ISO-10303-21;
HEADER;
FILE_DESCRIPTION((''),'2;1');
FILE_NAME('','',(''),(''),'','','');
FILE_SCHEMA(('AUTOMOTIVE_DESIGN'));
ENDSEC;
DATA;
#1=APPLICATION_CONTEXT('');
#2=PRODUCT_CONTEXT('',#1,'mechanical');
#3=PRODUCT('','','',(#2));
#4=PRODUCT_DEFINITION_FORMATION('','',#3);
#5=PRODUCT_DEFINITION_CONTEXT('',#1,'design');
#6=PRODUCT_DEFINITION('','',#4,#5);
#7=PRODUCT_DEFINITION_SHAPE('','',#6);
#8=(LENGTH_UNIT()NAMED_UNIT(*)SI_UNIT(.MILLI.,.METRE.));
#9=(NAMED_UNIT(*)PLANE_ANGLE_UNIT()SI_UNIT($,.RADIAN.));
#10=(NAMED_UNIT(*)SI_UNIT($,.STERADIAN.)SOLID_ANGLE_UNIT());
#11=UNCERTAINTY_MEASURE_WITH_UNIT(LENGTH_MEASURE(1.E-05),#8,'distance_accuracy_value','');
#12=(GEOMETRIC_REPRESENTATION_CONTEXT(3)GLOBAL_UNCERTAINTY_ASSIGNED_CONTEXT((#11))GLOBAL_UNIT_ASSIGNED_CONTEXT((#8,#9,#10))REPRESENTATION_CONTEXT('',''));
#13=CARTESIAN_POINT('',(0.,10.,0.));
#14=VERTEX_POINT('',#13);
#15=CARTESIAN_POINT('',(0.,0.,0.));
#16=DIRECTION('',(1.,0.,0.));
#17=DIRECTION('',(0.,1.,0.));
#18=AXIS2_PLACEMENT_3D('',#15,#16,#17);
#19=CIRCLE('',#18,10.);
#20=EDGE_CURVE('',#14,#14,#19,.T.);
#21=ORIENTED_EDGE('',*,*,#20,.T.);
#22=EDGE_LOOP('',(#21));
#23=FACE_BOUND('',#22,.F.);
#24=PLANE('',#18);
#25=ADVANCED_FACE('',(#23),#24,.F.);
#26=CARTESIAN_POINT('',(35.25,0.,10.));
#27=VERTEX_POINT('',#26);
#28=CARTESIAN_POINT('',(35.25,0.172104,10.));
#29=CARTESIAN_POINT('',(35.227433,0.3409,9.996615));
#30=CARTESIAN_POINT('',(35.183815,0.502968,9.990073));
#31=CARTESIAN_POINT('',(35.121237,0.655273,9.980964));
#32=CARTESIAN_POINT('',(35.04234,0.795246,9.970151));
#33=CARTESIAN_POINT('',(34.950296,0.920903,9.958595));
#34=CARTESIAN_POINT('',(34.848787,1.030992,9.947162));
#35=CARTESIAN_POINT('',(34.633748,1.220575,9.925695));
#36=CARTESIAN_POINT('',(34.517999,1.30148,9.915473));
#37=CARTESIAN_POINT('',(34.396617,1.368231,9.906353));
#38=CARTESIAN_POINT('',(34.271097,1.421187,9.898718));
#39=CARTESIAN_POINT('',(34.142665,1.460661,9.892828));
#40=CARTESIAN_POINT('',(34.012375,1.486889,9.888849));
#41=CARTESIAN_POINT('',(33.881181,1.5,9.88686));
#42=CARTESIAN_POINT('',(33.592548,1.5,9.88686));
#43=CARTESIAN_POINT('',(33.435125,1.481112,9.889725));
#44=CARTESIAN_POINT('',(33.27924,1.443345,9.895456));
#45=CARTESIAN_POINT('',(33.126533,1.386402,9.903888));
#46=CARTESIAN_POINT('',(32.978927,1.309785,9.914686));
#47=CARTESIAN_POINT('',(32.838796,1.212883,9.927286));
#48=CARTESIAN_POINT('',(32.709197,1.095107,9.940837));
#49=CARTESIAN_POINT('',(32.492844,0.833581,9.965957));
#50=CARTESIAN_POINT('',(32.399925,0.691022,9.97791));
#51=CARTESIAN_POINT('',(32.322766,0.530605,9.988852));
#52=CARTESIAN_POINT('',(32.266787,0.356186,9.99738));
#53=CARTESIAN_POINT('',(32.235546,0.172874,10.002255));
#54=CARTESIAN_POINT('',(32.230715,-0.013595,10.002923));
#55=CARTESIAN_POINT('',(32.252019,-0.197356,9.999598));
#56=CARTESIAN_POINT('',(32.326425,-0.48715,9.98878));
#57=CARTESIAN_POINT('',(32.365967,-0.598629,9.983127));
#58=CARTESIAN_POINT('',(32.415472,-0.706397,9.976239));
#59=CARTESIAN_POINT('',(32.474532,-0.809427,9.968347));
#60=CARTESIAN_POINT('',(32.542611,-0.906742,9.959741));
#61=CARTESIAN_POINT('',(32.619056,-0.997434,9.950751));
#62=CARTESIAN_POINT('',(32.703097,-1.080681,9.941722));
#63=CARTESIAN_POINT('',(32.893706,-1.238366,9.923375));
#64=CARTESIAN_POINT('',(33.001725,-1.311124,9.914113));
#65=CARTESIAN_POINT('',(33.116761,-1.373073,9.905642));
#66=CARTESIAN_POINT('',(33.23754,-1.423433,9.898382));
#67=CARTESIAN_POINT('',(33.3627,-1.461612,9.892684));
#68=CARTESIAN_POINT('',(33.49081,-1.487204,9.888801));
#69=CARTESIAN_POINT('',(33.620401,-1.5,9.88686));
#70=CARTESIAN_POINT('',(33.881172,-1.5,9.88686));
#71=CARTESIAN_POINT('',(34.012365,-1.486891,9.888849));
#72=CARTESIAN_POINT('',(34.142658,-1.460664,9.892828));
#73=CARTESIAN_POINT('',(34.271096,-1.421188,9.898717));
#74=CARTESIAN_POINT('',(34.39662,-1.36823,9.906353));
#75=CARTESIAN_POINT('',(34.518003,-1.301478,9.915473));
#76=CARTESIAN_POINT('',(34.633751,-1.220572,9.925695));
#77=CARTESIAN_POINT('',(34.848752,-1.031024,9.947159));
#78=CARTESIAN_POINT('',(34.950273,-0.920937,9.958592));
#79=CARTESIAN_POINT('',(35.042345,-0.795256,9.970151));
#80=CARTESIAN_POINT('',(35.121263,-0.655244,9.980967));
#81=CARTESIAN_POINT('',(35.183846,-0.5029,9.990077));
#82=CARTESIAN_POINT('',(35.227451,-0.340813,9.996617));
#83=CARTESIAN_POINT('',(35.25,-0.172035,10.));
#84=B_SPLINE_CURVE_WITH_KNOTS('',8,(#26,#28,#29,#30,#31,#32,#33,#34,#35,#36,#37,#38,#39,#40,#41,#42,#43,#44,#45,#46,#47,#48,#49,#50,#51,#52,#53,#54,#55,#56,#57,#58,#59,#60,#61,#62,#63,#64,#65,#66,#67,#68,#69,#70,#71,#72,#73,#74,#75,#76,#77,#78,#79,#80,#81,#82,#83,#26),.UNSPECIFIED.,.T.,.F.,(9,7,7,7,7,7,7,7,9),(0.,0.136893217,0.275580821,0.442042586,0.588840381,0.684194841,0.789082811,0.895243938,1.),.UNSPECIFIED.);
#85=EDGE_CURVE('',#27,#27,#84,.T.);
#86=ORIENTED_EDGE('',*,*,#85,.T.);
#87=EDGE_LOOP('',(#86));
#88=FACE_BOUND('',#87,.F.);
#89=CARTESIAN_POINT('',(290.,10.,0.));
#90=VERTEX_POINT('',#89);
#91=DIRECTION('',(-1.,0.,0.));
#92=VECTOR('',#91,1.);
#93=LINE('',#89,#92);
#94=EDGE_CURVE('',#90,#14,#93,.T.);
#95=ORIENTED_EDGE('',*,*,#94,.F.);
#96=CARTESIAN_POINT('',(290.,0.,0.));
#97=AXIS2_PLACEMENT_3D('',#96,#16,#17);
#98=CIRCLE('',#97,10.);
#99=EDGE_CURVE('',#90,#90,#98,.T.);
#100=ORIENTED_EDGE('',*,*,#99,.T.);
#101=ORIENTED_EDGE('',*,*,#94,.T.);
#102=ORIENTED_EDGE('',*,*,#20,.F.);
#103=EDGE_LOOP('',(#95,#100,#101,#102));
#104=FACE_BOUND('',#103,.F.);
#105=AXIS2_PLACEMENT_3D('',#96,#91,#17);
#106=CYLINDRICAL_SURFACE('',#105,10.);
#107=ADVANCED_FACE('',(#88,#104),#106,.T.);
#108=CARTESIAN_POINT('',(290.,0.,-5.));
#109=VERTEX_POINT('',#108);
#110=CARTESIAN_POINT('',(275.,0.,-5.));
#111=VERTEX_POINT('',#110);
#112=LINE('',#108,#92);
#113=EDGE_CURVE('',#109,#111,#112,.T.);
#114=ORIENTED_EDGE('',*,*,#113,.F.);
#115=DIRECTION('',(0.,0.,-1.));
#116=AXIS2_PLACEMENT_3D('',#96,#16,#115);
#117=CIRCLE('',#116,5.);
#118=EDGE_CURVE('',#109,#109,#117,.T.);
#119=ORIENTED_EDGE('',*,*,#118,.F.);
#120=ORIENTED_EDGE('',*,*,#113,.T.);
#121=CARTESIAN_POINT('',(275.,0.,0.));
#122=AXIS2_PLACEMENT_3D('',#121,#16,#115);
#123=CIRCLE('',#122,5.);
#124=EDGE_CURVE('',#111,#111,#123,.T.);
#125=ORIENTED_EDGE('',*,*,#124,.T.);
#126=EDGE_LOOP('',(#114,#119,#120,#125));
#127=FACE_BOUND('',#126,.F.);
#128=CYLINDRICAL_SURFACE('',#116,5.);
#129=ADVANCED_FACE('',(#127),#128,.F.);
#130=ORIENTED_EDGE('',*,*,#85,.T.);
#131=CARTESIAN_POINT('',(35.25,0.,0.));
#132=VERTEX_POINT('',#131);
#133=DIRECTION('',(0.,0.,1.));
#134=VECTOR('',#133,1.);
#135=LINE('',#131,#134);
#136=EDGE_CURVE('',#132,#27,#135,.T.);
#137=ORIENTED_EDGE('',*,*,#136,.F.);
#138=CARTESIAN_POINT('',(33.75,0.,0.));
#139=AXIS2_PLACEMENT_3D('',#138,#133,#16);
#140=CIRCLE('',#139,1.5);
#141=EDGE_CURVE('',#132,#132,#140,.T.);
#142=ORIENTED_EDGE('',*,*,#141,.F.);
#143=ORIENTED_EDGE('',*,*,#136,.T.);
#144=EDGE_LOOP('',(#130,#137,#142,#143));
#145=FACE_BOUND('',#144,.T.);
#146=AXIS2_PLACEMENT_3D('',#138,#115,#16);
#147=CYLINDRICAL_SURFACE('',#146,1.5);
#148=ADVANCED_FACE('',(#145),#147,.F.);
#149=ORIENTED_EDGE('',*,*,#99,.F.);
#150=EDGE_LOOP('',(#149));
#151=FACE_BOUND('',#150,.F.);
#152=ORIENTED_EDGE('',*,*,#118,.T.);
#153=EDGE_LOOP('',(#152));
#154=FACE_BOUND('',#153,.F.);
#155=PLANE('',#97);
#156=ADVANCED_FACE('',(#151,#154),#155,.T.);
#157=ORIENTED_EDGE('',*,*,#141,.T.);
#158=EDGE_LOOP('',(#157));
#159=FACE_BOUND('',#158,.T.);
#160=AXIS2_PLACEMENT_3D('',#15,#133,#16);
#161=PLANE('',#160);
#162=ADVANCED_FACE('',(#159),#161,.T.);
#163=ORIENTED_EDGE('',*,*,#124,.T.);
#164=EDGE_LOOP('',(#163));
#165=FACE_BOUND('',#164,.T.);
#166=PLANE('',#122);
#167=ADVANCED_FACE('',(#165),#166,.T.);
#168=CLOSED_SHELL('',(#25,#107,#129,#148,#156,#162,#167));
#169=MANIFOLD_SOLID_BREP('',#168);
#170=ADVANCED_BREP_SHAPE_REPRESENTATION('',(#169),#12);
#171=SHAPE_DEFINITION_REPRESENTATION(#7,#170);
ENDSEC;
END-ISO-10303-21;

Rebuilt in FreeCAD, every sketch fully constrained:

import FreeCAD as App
import Part
import Sketcher
from FreeCAD import Vector
Q = App.Units.Quantity

doc = App.newDocument("Part")
body = doc.addObject("PartDesign::Body", "Body")

# Sketch on XY plane
sketch1 = body.newObject("Sketcher::SketchObject", "Sketch")
sketch1.AttachmentSupport = (doc.getObject("XY_Plane"), [""])
sketch1.MapMode = "FlatFace"
sketch1.addGeometry([
    Part.LineSegment(Vector(0, 10, 0), Vector(0, 0, 0)),
    Part.LineSegment(Vector(0, 0, 0), Vector(290, 0, 0)),
    Part.LineSegment(Vector(290, 0, 0), Vector(290, 10, 0)),
    Part.LineSegment(Vector(290, 10, 0), Vector(0, 10, 0)),
], False)
sketch1.addConstraint([
    Sketcher.Constraint("Coincident", 0, 2, 1, 1),
    Sketcher.Constraint("Coincident", 1, 2, 2, 1),
    Sketcher.Constraint("Coincident", 2, 2, 3, 1),
    Sketcher.Constraint("Coincident", 3, 2, 0, 1),
    Sketcher.Constraint("Vertical", 0),
    Sketcher.Constraint("Horizontal", 1),
    Sketcher.Constraint("Vertical", 2),
    Sketcher.Constraint("Horizontal", 3),
    Sketcher.Constraint("Coincident", 0, 2, -1, 1),
    Sketcher.Constraint("DistanceX", 1, 1, 1, 2, Q("290 mm")),
    Sketcher.Constraint("DistanceY", 0, 2, 0, 1, Q("10 mm")),
])
revolution = body.newObject("PartDesign::Revolution", "Revolution")
revolution.Profile = sketch1
revolution.ReferenceAxis = (sketch1, ["H_Axis"])
revolution.Angle = 360

# Sketch on YZ plane
sketch2 = body.newObject("Sketcher::SketchObject", "Sketch001")
sketch2.AttachmentSupport = (doc.getObject("YZ_Plane"), [""])
sketch2.MapMode = "FlatFace"
sketch2.AttachmentOffset = App.Placement(Vector(0, 0, 290), App.Rotation())
sketch2.addGeometry(Part.Circle(Vector(0, 0, 0), Vector(0, 0, 1), 5), False)
sketch2.addConstraint([
    Sketcher.Constraint("Coincident", 0, 3, -1, 1),
    Sketcher.Constraint("Diameter", 0, Q("10 mm")),
])
pocket1 = body.newObject("PartDesign::Pocket", "Pocket")
pocket1.Profile = sketch2
pocket1.Length = 15

# Sketch on XY plane
sketch3 = body.newObject("Sketcher::SketchObject", "Sketch002")
sketch3.AttachmentSupport = (doc.getObject("XY_Plane"), [""])
sketch3.MapMode = "FlatFace"
sketch3.addGeometry(Part.Circle(Vector(33.8, 0, 0), Vector(0, 0, 1), 1.5), False)
sketch3.addConstraint([
    Sketcher.Constraint("PointOnObject", 0, 3, -1),
    Sketcher.Constraint("Diameter", 0, Q("3 mm")),
    Sketcher.Constraint("DistanceX", -1, 1, 0, 3, Q("33.75 mm")),
])
pocket2 = body.newObject("PartDesign::Pocket", "Pocket001")
pocket2.Profile = sketch3
pocket2.Length = 33.75
pocket2.Reversed = True

doc.recompute()
